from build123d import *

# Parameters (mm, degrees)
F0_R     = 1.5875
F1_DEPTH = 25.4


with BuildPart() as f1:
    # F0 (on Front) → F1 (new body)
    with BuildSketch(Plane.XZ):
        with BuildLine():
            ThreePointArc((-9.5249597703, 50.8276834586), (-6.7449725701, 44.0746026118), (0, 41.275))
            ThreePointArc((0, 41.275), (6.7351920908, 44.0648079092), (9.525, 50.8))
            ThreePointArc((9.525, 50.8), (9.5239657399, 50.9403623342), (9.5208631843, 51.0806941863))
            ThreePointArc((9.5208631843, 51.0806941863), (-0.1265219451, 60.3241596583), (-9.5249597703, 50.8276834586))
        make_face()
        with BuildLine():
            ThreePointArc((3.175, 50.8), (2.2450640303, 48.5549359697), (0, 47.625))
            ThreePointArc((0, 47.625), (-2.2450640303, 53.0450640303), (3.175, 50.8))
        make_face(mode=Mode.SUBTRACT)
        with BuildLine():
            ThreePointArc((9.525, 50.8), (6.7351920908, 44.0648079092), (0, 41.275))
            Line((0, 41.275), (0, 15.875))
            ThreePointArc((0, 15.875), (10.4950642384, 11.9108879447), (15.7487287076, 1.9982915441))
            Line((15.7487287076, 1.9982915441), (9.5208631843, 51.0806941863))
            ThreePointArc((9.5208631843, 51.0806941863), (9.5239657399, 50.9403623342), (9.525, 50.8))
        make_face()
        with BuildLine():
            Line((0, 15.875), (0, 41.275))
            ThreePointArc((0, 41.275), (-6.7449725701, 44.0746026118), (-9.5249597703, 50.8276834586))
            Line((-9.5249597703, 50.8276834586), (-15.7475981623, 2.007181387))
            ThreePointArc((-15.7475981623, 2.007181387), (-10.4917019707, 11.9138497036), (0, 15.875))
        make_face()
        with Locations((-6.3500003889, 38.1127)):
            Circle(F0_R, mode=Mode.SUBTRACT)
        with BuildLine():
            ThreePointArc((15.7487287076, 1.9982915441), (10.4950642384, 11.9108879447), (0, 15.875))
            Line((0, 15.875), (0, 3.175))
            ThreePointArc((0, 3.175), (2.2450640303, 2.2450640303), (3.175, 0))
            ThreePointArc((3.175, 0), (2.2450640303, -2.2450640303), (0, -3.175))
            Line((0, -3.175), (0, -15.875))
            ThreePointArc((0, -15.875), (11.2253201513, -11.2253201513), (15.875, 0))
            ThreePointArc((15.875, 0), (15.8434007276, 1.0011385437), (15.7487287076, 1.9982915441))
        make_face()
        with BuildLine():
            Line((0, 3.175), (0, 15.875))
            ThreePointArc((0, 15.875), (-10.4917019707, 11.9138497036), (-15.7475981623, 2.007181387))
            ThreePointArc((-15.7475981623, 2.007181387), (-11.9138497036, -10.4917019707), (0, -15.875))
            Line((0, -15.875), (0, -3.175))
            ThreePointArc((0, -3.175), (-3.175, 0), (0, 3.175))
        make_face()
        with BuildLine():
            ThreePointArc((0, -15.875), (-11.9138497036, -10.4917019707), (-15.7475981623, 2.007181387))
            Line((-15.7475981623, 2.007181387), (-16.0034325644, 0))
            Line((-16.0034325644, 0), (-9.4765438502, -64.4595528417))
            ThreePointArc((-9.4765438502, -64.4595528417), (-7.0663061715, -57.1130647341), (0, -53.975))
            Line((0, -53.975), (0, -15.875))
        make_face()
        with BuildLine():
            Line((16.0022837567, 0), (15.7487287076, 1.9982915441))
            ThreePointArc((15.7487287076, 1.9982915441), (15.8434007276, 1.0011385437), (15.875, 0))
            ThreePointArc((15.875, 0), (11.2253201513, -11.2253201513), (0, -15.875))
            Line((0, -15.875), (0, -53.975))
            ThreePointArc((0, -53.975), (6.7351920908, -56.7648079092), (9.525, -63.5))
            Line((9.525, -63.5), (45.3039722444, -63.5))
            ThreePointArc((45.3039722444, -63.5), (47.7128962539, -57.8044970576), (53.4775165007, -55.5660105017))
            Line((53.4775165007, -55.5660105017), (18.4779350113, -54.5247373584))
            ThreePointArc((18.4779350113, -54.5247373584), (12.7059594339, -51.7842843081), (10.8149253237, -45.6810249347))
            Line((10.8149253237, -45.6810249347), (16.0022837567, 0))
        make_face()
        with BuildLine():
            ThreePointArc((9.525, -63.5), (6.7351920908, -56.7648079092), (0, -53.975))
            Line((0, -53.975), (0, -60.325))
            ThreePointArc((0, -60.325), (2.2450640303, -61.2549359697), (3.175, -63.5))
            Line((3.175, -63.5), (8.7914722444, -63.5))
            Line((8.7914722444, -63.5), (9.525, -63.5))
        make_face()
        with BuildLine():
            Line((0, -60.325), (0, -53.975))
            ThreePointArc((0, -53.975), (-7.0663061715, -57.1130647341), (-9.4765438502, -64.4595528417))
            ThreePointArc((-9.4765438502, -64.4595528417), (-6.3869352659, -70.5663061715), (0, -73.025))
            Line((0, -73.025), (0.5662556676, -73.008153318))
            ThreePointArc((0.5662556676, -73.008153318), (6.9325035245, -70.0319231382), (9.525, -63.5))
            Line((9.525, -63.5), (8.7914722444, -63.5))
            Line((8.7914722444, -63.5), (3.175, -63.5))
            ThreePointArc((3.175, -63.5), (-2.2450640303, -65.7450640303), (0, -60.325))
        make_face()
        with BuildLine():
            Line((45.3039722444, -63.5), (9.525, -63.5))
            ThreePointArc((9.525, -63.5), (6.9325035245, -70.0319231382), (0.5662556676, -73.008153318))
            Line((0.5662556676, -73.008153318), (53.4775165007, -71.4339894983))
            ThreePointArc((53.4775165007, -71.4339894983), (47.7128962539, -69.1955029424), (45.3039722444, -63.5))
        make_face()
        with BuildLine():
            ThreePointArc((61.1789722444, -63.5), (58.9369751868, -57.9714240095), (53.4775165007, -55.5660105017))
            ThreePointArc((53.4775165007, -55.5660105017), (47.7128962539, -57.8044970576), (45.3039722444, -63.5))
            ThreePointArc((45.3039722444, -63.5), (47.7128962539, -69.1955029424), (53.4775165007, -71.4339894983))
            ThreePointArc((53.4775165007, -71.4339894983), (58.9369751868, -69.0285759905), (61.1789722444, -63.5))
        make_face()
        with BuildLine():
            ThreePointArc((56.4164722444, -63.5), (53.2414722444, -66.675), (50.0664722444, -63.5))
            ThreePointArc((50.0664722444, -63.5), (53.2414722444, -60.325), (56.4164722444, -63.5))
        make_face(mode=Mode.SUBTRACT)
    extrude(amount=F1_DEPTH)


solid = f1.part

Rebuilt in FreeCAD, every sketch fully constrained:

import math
import FreeCAD as App
import Part
import Sketcher
Q = App.Units.Quantity

doc = App.newDocument("Part")
body = doc.addObject("PartDesign::Body", "Body")

sketch1 = doc.addObject("Sketcher::SketchObject", "Sketch")
body.addObject(sketch1)
sketch1.AttachmentSupport = (doc.XZ_Plane, [""])
sketch1.MapMode = "FlatFace"
sketch1.addGeometry([
    Part.LineSegment(App.Vector(15.748729, 1.998292, 0), App.Vector(9.520863, 51.080694, 0)),
    Part.ArcOfCircle(Part.Circle(App.Vector(0, 50.8, 0), App.Vector(0, 0, 1), 9.525), math.radians(1.688706), math.radians(179.833475)),
    Part.LineSegment(App.Vector(-9.52496, 50.827683, 0), App.Vector(-15.747598, 2.007181, 0)),
    Part.LineSegment(App.Vector(-15.747598, 2.007181, 0), App.Vector(-16.003433, 0, 0)),
    Part.LineSegment(App.Vector(-16.003433, 0, 0), App.Vector(-9.476544, -64.459553, 0)),
    Part.ArcOfCircle(Part.Circle(App.Vector(0, -63.5, 0), App.Vector(0, 0, 1), 9.525), math.radians(-174.218189), math.radians(-90)),
    Part.LineSegment(App.Vector(0, -73.025, 0), App.Vector(0.566256, -73.008153, 0)),
    Part.LineSegment(App.Vector(0.566256, -73.008153, 0), App.Vector(53.477517, -71.433989, 0)),
    Part.ArcOfCircle(Part.Circle(App.Vector(53.241472, -63.5, 0), App.Vector(0, 0, 1), 7.9375), math.radians(-88.295895), math.radians(0)),
    Part.ArcOfCircle(Part.Circle(App.Vector(53.241472, -63.5, 0), App.Vector(0, 0, 1), 7.9375), math.radians(0), math.radians(88.295895)),
    Part.LineSegment(App.Vector(53.477517, -55.566011, 0), App.Vector(18.477935, -54.524737, 0)),
    Part.ArcOfCircle(Part.Circle(App.Vector(18.714357, -46.578053, 0), App.Vector(0, 0, 1), 7.9502), math.radians(173.521467), math.radians(268.295895)),
    Part.LineSegment(App.Vector(10.814925, -45.681025, 0), App.Vector(16.002284, 0, 0)),
    Part.LineSegment(App.Vector(16.002284, 0, 0), App.Vector(15.748729, 1.998292, 0)),
    Part.ArcOfCircle(Part.Circle(App.Vector(0, -63.5, 0), App.Vector(0, 0, 1), 3.175), math.radians(0), math.radians(90)),
    Part.ArcOfCircle(Part.Circle(App.Vector(0, -63.5, 0), App.Vector(0, 0, 1), 3.175), math.radians(90), math.radians(360)),
    Part.Circle(App.Vector(53.241472, -63.5, 0), App.Vector(0, 0, 1), 3.175),
    Part.ArcOfCircle(Part.Circle(App.Vector(0, 0, 0), App.Vector(0, 0, 1), 3.175), math.radians(0), math.radians(90)),
    Part.ArcOfCircle(Part.Circle(App.Vector(0, 0, 0), App.Vector(0, 0, 1), 3.175), math.radians(-90), math.radians(0)),
    Part.ArcOfCircle(Part.Circle(App.Vector(0, 0, 0), App.Vector(0, 0, 1), 3.175), math.radians(90), math.radians(270)),
    Part.Circle(App.Vector(-6.35, 38.1127, 0), App.Vector(0, 0, 1), 1.5875),
    Part.ArcOfCircle(Part.Circle(App.Vector(0, 50.8, 0), App.Vector(0, 0, 1), 3.175), math.radians(0), math.radians(270)),
    Part.ArcOfCircle(Part.Circle(App.Vector(0, 50.8, 0), App.Vector(0, 0, 1), 3.175), math.radians(-90), math.radians(0)),
], False)
sketch1.addConstraint([
    Sketcher.Constraint("Coincident", 0, 2, 1, 1),
    Sketcher.Constraint("Coincident", 1, 2, 2, 1),
    Sketcher.Constraint("Coincident", 2, 2, 3, 1),
    Sketcher.Constraint("Coincident", 3, 2, 4, 1),
    Sketcher.Constraint("Coincident", 4, 2, 5, 1),
    Sketcher.Constraint("Coincident", 5, 2, 6, 1),
    Sketcher.Constraint("Coincident", 6, 2, 7, 1),
    Sketcher.Constraint("Coincident", 7, 2, 8, 1),
    Sketcher.Constraint("Coincident", 8, 2, 9, 1),
    Sketcher.Constraint("Coincident", 9, 2, 10, 1),
    Sketcher.Constraint("Coincident", 10, 2, 11, 2),
    Sketcher.Constraint("Coincident", 11, 1, 12, 1),
    Sketcher.Constraint("Coincident", 12, 2, 13, 1),
    Sketcher.Constraint("Coincident", 13, 2, 0, 1),
    Sketcher.Constraint("Coincident", 14, 1, 15, 2),
    Sketcher.Constraint("Coincident", 15, 1, 14, 2),
    Sketcher.Constraint("Coincident", 17, 1, 18, 2),
    Sketcher.Constraint("Coincident", 18, 1, 19, 2),
    Sketcher.Constraint("Coincident", 19, 1, 17, 2),
    Sketcher.Constraint("Coincident", 21, 1, 22, 2),
    Sketcher.Constraint("Coincident", 22, 1, 21, 2),
    Sketcher.Constraint("Coincident", 17, 3, -1, 1),
    Sketcher.Constraint("Coincident", 18, 3, -1, 1),
    Sketcher.Constraint("Coincident", 9, 3, 8, 3),
    Sketcher.Constraint("Coincident", 14, 3, 5, 3),
    Sketcher.Constraint("Coincident", 16, 3, 8, 3),
    Sketcher.Constraint("Coincident", 21, 3, 1, 3),
    Sketcher.Constraint("PointOnObject", 1, 3, -2),
    Sketcher.Constraint("PointOnObject", 5, 3, -2),
    Sketcher.Constraint("PointOnObject", 15, 3, -2),
    Sketcher.Constraint("PointOnObject", 22, 3, -2),
    Sketcher.Constraint("PointOnObject", 3, 2, -1),
    Sketcher.Constraint("PointOnObject", 5, 2, -2),
    Sketcher.Constraint("PointOnObject", 12, 2, -1),
    Sketcher.Constraint("PointOnObject", 15, 1, -2),
    Sketcher.Constraint("PointOnObject", 17, 1, -1),
    Sketcher.Constraint("PointOnObject", 18, 1, -2),
    Sketcher.Constraint("PointOnObject", 19, 1, -2),
    Sketcher.Constraint("PointOnObject", 22, 1, -2),
    Sketcher.Constraint("Diameter", 16, Q("0.25 in")),
    Sketcher.Constraint("Diameter", 20, Q("0.125 in")),
    Sketcher.Constraint("DistanceY", -1, 1, 1, 3, Q("2 in")),
    Sketcher.Constraint("DistanceY", -1, 1, 21, 1, Q("2 in")),
    Sketcher.Constraint("Radius", 1, Q("0.375 in")),
    Sketcher.Constraint("Radius", 5, Q("0.375 in")),
    Sketcher.Constraint("Radius", 8, Q("0.3125 in")),
    Sketcher.Constraint("Radius", 11, Q("0.313 in")),
    Sketcher.Constraint("Radius", 14, Q("0.125 in")),
    Sketcher.Constraint("Radius", 17, Q("0.125 in")),
    Sketcher.Constraint("Radius", 21, Q("0.125 in")),
    Sketcher.Constraint("DistanceY", 5, 3, -1, 1, Q("2.5 in")),
    Sketcher.Constraint("DistanceY", 8, 3, -1, 1, Q("2.5 in")),
    Sketcher.Constraint("DistanceY", 8, 2, -1, 1, Q("2.5 in")),
    Sketcher.Constraint("DistanceY", 14, 1, -1, 1, Q("2.5 in")),
    Sketcher.Constraint("DistanceX", 20, 3, -1, 1, Q("0.25 in")),
    Sketcher.Constraint("DistanceX", 20, 3, 19, 3, Q("0.25 in")),
    Sketcher.Constraint("DistanceY", -1, 1, 20, 3, Q("1.5005 in")),
    Sketcher.Constraint("DistanceX", 2, 2, -1, 1, Q("15.747598 mm")),
    Sketcher.Constraint("DistanceX", 4, 2, 11, 3, Q("28.190901 mm")),
    Sketcher.Constraint("DistanceY", 4, 2, 11, 3, Q("17.881499 mm")),
    Sketcher.Constraint("DistanceX", 4, 2, 6, 2, Q("10.0428 mm")),
    Sketcher.Constraint("DistanceY", 6, 2, 4, 2, Q("8.5486 mm")),
    Sketcher.Constraint("Distance", 0, Q("49.475939 mm")),
    Sketcher.Constraint("Distance", 2, Q("49.215472 mm")),
    Sketcher.Constraint("Distance", 3, Q("2.02342 mm")),
    Sketcher.Constraint("Distance", 12, Q("45.97461 mm")),
    Sketcher.Constraint("DistanceY", -1, 1, 2, 2, Q("2.007181 mm")),
    Sketcher.Constraint("DistanceY", 7, 2, -1, 1, Q("71.433989 mm")),
    Sketcher.Constraint("DistanceY", 9, 2, -1, 1, Q("55.566011 mm")),
    Sketcher.Constraint("DistanceX", -1, 1, 13, 2, Q("15.748729 mm")),
    Sketcher.Constraint("DistanceY", -1, 1, 13, 2, Q("1.998292 mm")),
    Sketcher.Constraint("DistanceX", 11, 3, 7, 2, Q("34.76316 mm")),
    Sketcher.Constraint("DistanceX", 10, 2, 11, 3, Q("0.236422 mm")),
    Sketcher.Constraint("DistanceX", 11, 1, 11, 3, Q("7.899432 mm")),
    Sketcher.Constraint("DistanceX", 2, 2, 12, 2, Q("31.749882 mm")),
])
pad1 = doc.addObject("PartDesign::Pad", "Pad")
body.addObject(pad1)
pad1.Profile = sketch1
pad1.Length = Q("1 in")

doc.recompute()
